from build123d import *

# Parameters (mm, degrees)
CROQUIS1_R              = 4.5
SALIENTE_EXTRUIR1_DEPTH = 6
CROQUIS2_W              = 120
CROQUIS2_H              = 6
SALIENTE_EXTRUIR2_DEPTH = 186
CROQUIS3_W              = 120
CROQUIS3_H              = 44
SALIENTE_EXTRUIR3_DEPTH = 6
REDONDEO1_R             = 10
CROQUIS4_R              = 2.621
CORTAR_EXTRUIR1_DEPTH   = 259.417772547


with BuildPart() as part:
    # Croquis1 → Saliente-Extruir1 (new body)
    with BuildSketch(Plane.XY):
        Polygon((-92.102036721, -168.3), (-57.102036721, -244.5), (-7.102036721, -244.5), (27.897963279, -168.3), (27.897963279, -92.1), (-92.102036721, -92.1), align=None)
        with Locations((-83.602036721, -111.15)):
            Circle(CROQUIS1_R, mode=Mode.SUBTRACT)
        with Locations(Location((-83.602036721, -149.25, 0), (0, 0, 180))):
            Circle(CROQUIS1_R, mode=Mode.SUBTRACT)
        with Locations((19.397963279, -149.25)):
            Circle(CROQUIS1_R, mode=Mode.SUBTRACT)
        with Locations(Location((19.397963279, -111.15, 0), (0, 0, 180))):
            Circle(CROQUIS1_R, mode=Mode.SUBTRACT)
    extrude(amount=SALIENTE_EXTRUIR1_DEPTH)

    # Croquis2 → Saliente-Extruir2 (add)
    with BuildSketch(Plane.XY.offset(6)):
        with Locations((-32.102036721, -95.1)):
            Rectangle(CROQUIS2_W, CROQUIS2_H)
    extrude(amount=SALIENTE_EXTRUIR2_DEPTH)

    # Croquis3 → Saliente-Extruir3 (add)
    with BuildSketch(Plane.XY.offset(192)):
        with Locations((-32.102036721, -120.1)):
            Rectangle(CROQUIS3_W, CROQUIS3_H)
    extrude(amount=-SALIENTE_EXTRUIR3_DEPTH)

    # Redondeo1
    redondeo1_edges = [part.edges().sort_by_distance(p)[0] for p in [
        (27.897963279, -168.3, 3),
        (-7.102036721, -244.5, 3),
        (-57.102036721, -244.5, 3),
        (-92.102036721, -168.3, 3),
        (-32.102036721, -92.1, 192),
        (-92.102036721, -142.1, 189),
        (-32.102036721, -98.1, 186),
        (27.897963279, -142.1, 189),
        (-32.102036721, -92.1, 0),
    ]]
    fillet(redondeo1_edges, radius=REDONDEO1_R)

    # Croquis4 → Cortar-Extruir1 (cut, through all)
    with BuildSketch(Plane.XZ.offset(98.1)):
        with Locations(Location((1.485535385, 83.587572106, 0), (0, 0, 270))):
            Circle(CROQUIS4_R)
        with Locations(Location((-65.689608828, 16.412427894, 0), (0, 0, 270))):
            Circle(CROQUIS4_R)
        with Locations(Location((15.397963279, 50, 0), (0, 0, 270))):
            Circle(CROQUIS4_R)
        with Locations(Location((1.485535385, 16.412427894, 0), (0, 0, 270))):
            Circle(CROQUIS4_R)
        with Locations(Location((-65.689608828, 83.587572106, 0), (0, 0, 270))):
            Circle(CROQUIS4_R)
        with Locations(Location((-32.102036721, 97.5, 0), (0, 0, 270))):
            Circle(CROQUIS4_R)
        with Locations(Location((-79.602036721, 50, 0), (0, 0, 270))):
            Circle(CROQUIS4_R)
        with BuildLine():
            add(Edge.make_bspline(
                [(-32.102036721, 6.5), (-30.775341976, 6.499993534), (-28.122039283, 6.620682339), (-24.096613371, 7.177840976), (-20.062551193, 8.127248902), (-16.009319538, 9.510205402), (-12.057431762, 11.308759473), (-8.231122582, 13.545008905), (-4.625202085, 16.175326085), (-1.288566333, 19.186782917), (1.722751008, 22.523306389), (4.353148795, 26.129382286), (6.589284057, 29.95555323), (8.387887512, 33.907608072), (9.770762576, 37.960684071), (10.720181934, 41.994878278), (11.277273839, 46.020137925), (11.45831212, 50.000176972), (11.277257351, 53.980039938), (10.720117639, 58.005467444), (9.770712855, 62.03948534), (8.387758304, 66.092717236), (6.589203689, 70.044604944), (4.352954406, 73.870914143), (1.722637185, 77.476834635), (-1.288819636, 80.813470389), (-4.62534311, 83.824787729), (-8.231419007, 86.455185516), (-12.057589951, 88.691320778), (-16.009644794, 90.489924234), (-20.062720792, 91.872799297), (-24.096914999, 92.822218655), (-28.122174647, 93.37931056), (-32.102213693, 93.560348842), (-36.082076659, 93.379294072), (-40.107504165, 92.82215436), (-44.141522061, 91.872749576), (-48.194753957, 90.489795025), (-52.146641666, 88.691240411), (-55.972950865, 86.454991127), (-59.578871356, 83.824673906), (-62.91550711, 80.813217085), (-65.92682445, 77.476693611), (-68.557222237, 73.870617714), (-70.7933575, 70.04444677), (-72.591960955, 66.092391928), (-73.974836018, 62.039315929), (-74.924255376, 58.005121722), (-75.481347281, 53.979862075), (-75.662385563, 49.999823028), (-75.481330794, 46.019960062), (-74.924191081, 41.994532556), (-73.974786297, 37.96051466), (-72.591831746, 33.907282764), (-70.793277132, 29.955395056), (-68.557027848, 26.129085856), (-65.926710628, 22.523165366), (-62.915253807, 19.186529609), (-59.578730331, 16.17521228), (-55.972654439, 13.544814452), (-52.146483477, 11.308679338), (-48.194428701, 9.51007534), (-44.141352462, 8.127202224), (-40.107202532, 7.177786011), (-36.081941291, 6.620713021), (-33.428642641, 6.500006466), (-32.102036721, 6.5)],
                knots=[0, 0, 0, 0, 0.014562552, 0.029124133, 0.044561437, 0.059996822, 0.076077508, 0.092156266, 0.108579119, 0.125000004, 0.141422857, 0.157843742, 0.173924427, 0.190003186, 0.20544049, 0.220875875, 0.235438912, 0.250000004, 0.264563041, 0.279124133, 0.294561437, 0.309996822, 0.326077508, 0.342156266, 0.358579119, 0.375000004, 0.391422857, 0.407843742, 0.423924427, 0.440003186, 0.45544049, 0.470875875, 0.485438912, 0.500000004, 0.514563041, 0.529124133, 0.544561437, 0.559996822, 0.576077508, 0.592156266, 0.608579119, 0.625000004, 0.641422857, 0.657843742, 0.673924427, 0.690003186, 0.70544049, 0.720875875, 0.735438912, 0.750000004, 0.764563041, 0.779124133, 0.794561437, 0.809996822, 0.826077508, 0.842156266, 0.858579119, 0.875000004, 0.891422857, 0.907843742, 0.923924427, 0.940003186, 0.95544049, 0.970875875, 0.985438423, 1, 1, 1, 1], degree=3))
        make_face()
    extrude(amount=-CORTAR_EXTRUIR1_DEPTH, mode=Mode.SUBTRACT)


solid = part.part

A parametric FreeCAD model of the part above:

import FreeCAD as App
import Part
import Sketcher


def edges_at(feature, points):
    """Names of the edges that pass closest to the given points."""
    edges = feature.Shape.Edges
    near = lambda p: min(range(len(edges)), key=lambda i: edges[i].distToShape(Part.Vertex(*p))[0])
    return sorted({f"Edge{near(p) + 1}" for p in points})


def add_polygon(sketch, points):
    """Adds a closed chain of lines whose ends are joined by coincident constraints."""
    first, n = sketch.GeometryCount, len(points)
    for a, b in zip(points, points[1:] + points[:1]):
        sketch.addGeometry(Part.LineSegment(App.Vector(*a, 0), App.Vector(*b, 0)), False)
    for i in range(n):
        sketch.addConstraint(Sketcher.Constraint("Coincident", first + i, 2, first + (i + 1) % n, 1))

doc = App.newDocument("Part")
params = doc.addObject("Spreadsheet::Sheet", "Params")
for row, (alias, value) in enumerate([
    ("sketch1_diameter", "9 mm"),
    ("sketch1_width", "50 mm"),
    ("sketch1_width2", "120 mm"),
    ("sketch1_height", "76.2 mm"),
    ("pad1_length", "6 mm"),
    ("sketch2_width", "120 mm"),
    ("sketch2_height", "6 mm"),
    ("pad2_length", "186 mm"),
    ("sketch3_width", "120 mm"),
    ("sketch3_height", "44 mm"),
    ("pad3_length", "6 mm"),
    ("fillet_radius", "10 mm"),
], start=1):
    params.set(f"A{row}", alias)
    params.set(f"B{row}", "=" + value)
    params.setAlias(f"B{row}", alias)

body = doc.addObject("PartDesign::Body", "Body")

# Sketch on XY plane
sketch1 = body.newObject("Sketcher::SketchObject", "Sketch")
sketch1.AttachmentSupport = (doc.getObject("XY_Plane"), [""])
sketch1.MapMode = "FlatFace"
add_polygon(sketch1, [(-92.102037, -168.3), (-57.102037, -244.5), (-7.102037, -244.5), (27.897963, -168.3), (27.897963, -92.1), (-92.102037, -92.1)])  # lines 0-5
sketch1.addGeometry(Part.Circle(App.Vector(-83.602037, -149.25, 0), App.Vector(0, 0, 1), 4.5), False)  # 6
sketch1.addGeometry(Part.Circle(App.Vector(19.397963, -149.25, 0), App.Vector(0, 0, 1), 4.5), False)  # 7
sketch1.addGeometry(Part.Circle(App.Vector(-83.602037, -111.15, 0), App.Vector(0, 0, 1), 4.5), False)  # 8
sketch1.addGeometry(Part.Circle(App.Vector(19.397963, -111.15, 0), App.Vector(0, 0, 1), 4.5), False)  # 9
sketch1.addConstraint([
    Sketcher.Constraint("Horizontal", 1),
    Sketcher.Constraint("Vertical", 3),
    Sketcher.Constraint("Horizontal", 4),
    Sketcher.Constraint("Vertical", 5),
    Sketcher.Constraint("Equal", 6, 7),
    Sketcher.Constraint("Equal", 7, 8),
    Sketcher.Constraint("Equal", 8, 9),
    Sketcher.Constraint("Horizontal", 6, 3, 7, 3),
    Sketcher.Constraint("Horizontal", 8, 3, 9, 3),
    Sketcher.Constraint("Horizontal", 2, 2, 5, 2),
    Sketcher.Constraint("Vertical", 6, 3, 8, 3),
    Sketcher.Constraint("Vertical", 7, 3, 9, 3),
    Sketcher.Constraint("Equal", 0, 2),
    Sketcher.Constraint("Diameter", 6, 9.0),
    Sketcher.Constraint("DistanceX", 1, 1, 1, 2, 50.0),
    Sketcher.Constraint("DistanceX", 4, 2, 4, 1, 120.0),
    Sketcher.Constraint("DistanceY", 3, 1, 3, 2, 76.2),
    Sketcher.Constraint("DistanceX", 6, 3, 7, 3, 103.0),
    Sketcher.Constraint("DistanceY", 0, 2, -1, 1, 244.5),
    Sketcher.Constraint("DistanceY", 2, 2, -1, 1, 168.3),
    Sketcher.Constraint("DistanceY", 6, 3, 8, 3, 38.1),
    Sketcher.Constraint("DistanceX", 6, 3, 0, 2, 26.5),
    Sketcher.Constraint("DistanceY", 6, 3, -1, 1, 149.25),
    Sketcher.Constraint("DistanceX", 6, 3, -1, 1, 83.602037),
])
sketch1.setExpression("Constraints[19]", "Params.sketch1_diameter")
sketch1.setExpression("Constraints[20]", "Params.sketch1_width")
sketch1.setExpression("Constraints[21]", "Params.sketch1_width2")
sketch1.setExpression("Constraints[22]", "Params.sketch1_height")
pad1 = body.newObject("PartDesign::Pad", "Pad")
pad1.Profile = sketch1
pad1.setExpression("Length", "Params.pad1_length")

# Sketch on XY plane
sketch2 = body.newObject("Sketcher::SketchObject", "Sketch001")
sketch2.AttachmentSupport = (doc.getObject("XY_Plane"), [""])
sketch2.MapMode = "FlatFace"
sketch2.AttachmentOffset = App.Placement(App.Vector(0, 0, 6), App.Rotation())
add_polygon(sketch2, [(-92.102037, -92.1), (-92.102037, -98.1), (27.897963, -98.1), (27.897963, -92.1)])  # lines 0-3
sketch2.addConstraint([
    Sketcher.Constraint("Vertical", 0),
    Sketcher.Constraint("Horizontal", 1),
    Sketcher.Constraint("Vertical", 2),
    Sketcher.Constraint("Horizontal", 3),
    Sketcher.Constraint("DistanceX", 1, 1, 1, 2, 120.0),
    Sketcher.Constraint("DistanceY", 0, 2, 0, 1, 6.0),
    Sketcher.Constraint("DistanceY", 0, 2, -1, 1, 98.1),
    Sketcher.Constraint("DistanceX", 0, 2, -1, 1, 92.102037),
])
sketch2.setExpression("Constraints[8]", "Params.sketch2_width")
sketch2.setExpression("Constraints[9]", "Params.sketch2_height")
pad2 = body.newObject("PartDesign::Pad", "Pad001")
pad2.Profile = sketch2
pad2.setExpression("Length", "Params.pad2_length")

# Sketch on XY plane
sketch3 = body.newObject("Sketcher::SketchObject", "Sketch002")
sketch3.AttachmentSupport = (doc.getObject("XY_Plane"), [""])
sketch3.MapMode = "FlatFace"
sketch3.AttachmentOffset = App.Placement(App.Vector(0, 0, 192), App.Rotation())
add_polygon(sketch3, [(-92.102037, -98.1), (-92.102037, -142.1), (27.897963, -142.1), (27.897963, -98.1)])  # lines 0-3
sketch3.addConstraint([
    Sketcher.Constraint("Vertical", 0),
    Sketcher.Constraint("Horizontal", 1),
    Sketcher.Constraint("Vertical", 2),
    Sketcher.Constraint("Horizontal", 3),
    Sketcher.Constraint("DistanceX", 1, 1, 1, 2, 120.0),
    Sketcher.Constraint("DistanceY", 0, 2, 0, 1, 44.0),
    Sketcher.Constraint("DistanceY", 0, 2, -1, 1, 142.1),
    Sketcher.Constraint("DistanceX", 0, 2, -1, 1, 92.102037),
])
sketch3.setExpression("Constraints[8]", "Params.sketch3_width")
sketch3.setExpression("Constraints[9]", "Params.sketch3_height")
pad3 = body.newObject("PartDesign::Pad", "Pad002")
pad3.Profile = sketch3
pad3.setExpression("Length", "Params.pad3_length")
pad3.Reversed = True
doc.recompute()

fillet = body.newObject("PartDesign::Fillet", "Fillet")
fillet.Base = (pad3, edges_at(pad3, [
    (27.898, -168.3, 3),
    (-7.102, -244.5, 3),
    (-57.102, -244.5, 3),
    (-92.102, -168.3, 3),
    (-32.102, -92.1, 192),
    (-92.102, -142.1, 189),
    (-32.102, -98.1, 186),
    (27.898, -142.1, 189),
    (-32.102, -92.1, 0),
]))
fillet.setExpression("Radius", "Params.fillet_radius")

# Sketch on XZ plane
sketch4 = body.newObject("Sketcher::SketchObject", "Sketch003")
sketch4.AttachmentSupport = (doc.getObject("XZ_Plane"), [""])
sketch4.MapMode = "FlatFace"
sketch4.AttachmentOffset = App.Placement(App.Vector(0, 0, 98.1), App.Rotation())
sketch4.addGeometry([
    Part.Circle(App.Vector(1.485535, 83.587572, 0), App.Vector(0, 0, 1), 2.621),  # 0
    Part.Circle(App.Vector(-65.689609, 16.412428, 0), App.Vector(0, 0, 1), 2.621),  # 1
    Part.Circle(App.Vector(15.397963, 50, 0), App.Vector(0, 0, 1), 2.621),  # 2
    Part.Circle(App.Vector(1.485535, 16.412428, 0), App.Vector(0, 0, 1), 2.621),  # 3
    Part.Circle(App.Vector(-65.689609, 83.587572, 0), App.Vector(0, 0, 1), 2.621),  # 4
    Part.Circle(App.Vector(-32.102037, 97.5, 0), App.Vector(0, 0, 1), 2.621),  # 5
    Part.Circle(App.Vector(-79.602037, 50, 0), App.Vector(0, 0, 1), 2.621),  # 6
    Part.BSplineCurve([App.Vector(-32.102037, 6.5, 0), App.Vector(-30.775342, 6.499994, 0), App.Vector(-28.122039, 6.620682, 0), App.Vector(-24.096613, 7.177841, 0), App.Vector(-20.062551, 8.127249, 0), App.Vector(-16.00932, 9.510205, 0), App.Vector(-12.057432, 11.308759, 0), App.Vector(-8.231123, 13.545009, 0), App.Vector(-4.625202, 16.175326, 0), App.Vector(-1.288566, 19.186783, 0), App.Vector(1.722751, 22.523306, 0), App.Vector(4.353149, 26.129382, 0), App.Vector(6.589284, 29.955553, 0), App.Vector(8.387888, 33.907608, 0), App.Vector(9.770763, 37.960684, 0), App.Vector(10.720182, 41.994878, 0), App.Vector(11.277274, 46.020138, 0), App.Vector(11.458312, 50.000177, 0), App.Vector(11.277257, 53.98004, 0), App.Vector(10.720118, 58.005467, 0), App.Vector(9.770713, 62.039485, 0), App.Vector(8.387758, 66.092717, 0), App.Vector(6.589204, 70.044605, 0), App.Vector(4.352954, 73.870914, 0), App.Vector(1.722637, 77.476835, 0), App.Vector(-1.28882, 80.81347, 0), App.Vector(-4.625343, 83.824788, 0), App.Vector(-8.231419, 86.455186, 0), App.Vector(-12.05759, 88.691321, 0), App.Vector(-16.009645, 90.489924, 0), App.Vector(-20.062721, 91.872799, 0), App.Vector(-24.096915, 92.822219, 0), App.Vector(-28.122175, 93.379311, 0), App.Vector(-32.102214, 93.560349, 0), App.Vector(-36.082077, 93.379294, 0), App.Vector(-40.107504, 92.822154, 0), App.Vector(-44.141522, 91.87275, 0), App.Vector(-48.194754, 90.489795, 0), App.Vector(-52.146642, 88.69124, 0), App.Vector(-55.972951, 86.454991, 0), App.Vector(-59.578871, 83.824674, 0), App.Vector(-62.915507, 80.813217, 0), App.Vector(-65.926824, 77.476694, 0), App.Vector(-68.557222, 73.870618, 0), App.Vector(-70.793357, 70.044447, 0), App.Vector(-72.591961, 66.092392, 0), App.Vector(-73.974836, 62.039316, 0), App.Vector(-74.924255, 58.005122, 0), App.Vector(-75.481347, 53.979862, 0), App.Vector(-75.662386, 49.999823, 0), App.Vector(-75.481331, 46.01996, 0), App.Vector(-74.924191, 41.994533, 0), App.Vector(-73.974786, 37.960515, 0), App.Vector(-72.591832, 33.907283, 0), App.Vector(-70.793277, 29.955395, 0), App.Vector(-68.557028, 26.129086, 0), App.Vector(-65.926711, 22.523165, 0), App.Vector(-62.915254, 19.18653, 0), App.Vector(-59.57873, 16.175212, 0), App.Vector(-55.972654, 13.544814, 0), App.Vector(-52.146483, 11.308679, 0), App.Vector(-48.194429, 9.510075, 0), App.Vector(-44.141352, 8.127202, 0), App.Vector(-40.107203, 7.177786, 0), App.Vector(-36.081941, 6.620713, 0), App.Vector(-33.428643, 6.500006, 0), App.Vector(-32.102037, 6.5, 0)], [4, 1, 1, 1, 1, 1, 1, 1, 1, 1, 1, 1, 1, 1, 1, 1, 1, 1, 1, 1, 1, 1, 1, 1, 1, 1, 1, 1, 1, 1, 1, 1, 1, 1, 1, 1, 1, 1, 1, 1, 1, 1, 1, 1, 1, 1, 1, 1, 1, 1, 1, 1, 1, 1, 1, 1, 1, 1, 1, 1, 1, 1, 1, 1, 4], [0, 0.014562552, 0.029124133, 0.044561437, 0.059996822, 0.076077508, 0.092156266, 0.108579119, 0.125000004, 0.141422857, 0.157843742, 0.173924427, 0.190003186, 0.20544049, 0.220875875, 0.235438912, 0.250000004, 0.264563041, 0.279124133, 0.294561437, 0.309996822, 0.326077508, 0.342156266, 0.358579119, 0.375000004, 0.391422857, 0.407843742, 0.423924427, 0.440003186, 0.45544049, 0.470875875, 0.485438912, 0.500000004, 0.514563041, 0.529124133, 0.544561437, 0.559996822, 0.576077508, 0.592156266, 0.608579119, 0.625000004, 0.641422857, 0.657843742, 0.673924427, 0.690003186, 0.70544049, 0.720875875, 0.735438912, 0.750000004, 0.764563041, 0.779124133, 0.794561437, 0.809996822, 0.826077508, 0.842156266, 0.858579119, 0.875000004, 0.891422857, 0.907843742, 0.923924427, 0.940003186, 0.95544049, 0.970875875, 0.985438423, 1], False, 3, [1, 1, 1, 1, 1, 1, 1, 1, 1, 1, 1, 1, 1, 1, 1, 1, 1, 1, 1, 1, 1, 1, 1, 1, 1, 1, 1, 1, 1, 1, 1, 1, 1, 1, 1, 1, 1, 1, 1, 1, 1, 1, 1, 1, 1, 1, 1, 1, 1, 1, 1, 1, 1, 1, 1, 1, 1, 1, 1, 1, 1, 1, 1, 1, 1, 1, 1], False),  # 7
], False)
sketch4.addConstraint([
    Sketcher.Constraint("Block", 7),
    Sketcher.Constraint("Equal", 0, 1),
    Sketcher.Constraint("Equal", 1, 2),
    Sketcher.Constraint("Equal", 2, 3),
    Sketcher.Constraint("Equal", 3, 4),
    Sketcher.Constraint("Equal", 4, 5),
    Sketcher.Constraint("Equal", 5, 6),
    Sketcher.Constraint("Horizontal", 1, 3, 3, 3),
    Sketcher.Constraint("Horizontal", 0, 3, 4, 3),
    Sketcher.Constraint("Horizontal", 2, 3, 6, 3),
    Sketcher.Constraint("Vertical", 0, 3, 3, 3),
    Sketcher.Constraint("Vertical", 1, 3, 4, 3),
    Sketcher.Constraint("Diameter", 0, 5.242),
    Sketcher.Constraint("DistanceY", -1, 1, 2, 3, 50.0),
    Sketcher.Constraint("DistanceY", -1, 1, 5, 3, 97.5),
    Sketcher.Constraint("DistanceX", 5, 3, 2, 3, 47.5),
    Sketcher.Constraint("DistanceX", 6, 3, 5, 3, 47.5),
    Sketcher.Constraint("DistanceX", 1, 3, -1, 1, 65.689609),
    Sketcher.Constraint("DistanceX", -1, 1, 0, 3, 1.485535),
    Sketcher.Constraint("DistanceY", -1, 1, 0, 3, 83.587572),
    Sketcher.Constraint("DistanceY", -1, 1, 1, 3, 16.412428),
    Sketcher.Constraint("DistanceX", -1, 1, 2, 3, 15.397963),
])
pocket1 = body.newObject("PartDesign::Pocket", "Pocket")
pocket1.Profile = sketch4
pocket1.Type = "ThroughAll"

doc.recompute()
